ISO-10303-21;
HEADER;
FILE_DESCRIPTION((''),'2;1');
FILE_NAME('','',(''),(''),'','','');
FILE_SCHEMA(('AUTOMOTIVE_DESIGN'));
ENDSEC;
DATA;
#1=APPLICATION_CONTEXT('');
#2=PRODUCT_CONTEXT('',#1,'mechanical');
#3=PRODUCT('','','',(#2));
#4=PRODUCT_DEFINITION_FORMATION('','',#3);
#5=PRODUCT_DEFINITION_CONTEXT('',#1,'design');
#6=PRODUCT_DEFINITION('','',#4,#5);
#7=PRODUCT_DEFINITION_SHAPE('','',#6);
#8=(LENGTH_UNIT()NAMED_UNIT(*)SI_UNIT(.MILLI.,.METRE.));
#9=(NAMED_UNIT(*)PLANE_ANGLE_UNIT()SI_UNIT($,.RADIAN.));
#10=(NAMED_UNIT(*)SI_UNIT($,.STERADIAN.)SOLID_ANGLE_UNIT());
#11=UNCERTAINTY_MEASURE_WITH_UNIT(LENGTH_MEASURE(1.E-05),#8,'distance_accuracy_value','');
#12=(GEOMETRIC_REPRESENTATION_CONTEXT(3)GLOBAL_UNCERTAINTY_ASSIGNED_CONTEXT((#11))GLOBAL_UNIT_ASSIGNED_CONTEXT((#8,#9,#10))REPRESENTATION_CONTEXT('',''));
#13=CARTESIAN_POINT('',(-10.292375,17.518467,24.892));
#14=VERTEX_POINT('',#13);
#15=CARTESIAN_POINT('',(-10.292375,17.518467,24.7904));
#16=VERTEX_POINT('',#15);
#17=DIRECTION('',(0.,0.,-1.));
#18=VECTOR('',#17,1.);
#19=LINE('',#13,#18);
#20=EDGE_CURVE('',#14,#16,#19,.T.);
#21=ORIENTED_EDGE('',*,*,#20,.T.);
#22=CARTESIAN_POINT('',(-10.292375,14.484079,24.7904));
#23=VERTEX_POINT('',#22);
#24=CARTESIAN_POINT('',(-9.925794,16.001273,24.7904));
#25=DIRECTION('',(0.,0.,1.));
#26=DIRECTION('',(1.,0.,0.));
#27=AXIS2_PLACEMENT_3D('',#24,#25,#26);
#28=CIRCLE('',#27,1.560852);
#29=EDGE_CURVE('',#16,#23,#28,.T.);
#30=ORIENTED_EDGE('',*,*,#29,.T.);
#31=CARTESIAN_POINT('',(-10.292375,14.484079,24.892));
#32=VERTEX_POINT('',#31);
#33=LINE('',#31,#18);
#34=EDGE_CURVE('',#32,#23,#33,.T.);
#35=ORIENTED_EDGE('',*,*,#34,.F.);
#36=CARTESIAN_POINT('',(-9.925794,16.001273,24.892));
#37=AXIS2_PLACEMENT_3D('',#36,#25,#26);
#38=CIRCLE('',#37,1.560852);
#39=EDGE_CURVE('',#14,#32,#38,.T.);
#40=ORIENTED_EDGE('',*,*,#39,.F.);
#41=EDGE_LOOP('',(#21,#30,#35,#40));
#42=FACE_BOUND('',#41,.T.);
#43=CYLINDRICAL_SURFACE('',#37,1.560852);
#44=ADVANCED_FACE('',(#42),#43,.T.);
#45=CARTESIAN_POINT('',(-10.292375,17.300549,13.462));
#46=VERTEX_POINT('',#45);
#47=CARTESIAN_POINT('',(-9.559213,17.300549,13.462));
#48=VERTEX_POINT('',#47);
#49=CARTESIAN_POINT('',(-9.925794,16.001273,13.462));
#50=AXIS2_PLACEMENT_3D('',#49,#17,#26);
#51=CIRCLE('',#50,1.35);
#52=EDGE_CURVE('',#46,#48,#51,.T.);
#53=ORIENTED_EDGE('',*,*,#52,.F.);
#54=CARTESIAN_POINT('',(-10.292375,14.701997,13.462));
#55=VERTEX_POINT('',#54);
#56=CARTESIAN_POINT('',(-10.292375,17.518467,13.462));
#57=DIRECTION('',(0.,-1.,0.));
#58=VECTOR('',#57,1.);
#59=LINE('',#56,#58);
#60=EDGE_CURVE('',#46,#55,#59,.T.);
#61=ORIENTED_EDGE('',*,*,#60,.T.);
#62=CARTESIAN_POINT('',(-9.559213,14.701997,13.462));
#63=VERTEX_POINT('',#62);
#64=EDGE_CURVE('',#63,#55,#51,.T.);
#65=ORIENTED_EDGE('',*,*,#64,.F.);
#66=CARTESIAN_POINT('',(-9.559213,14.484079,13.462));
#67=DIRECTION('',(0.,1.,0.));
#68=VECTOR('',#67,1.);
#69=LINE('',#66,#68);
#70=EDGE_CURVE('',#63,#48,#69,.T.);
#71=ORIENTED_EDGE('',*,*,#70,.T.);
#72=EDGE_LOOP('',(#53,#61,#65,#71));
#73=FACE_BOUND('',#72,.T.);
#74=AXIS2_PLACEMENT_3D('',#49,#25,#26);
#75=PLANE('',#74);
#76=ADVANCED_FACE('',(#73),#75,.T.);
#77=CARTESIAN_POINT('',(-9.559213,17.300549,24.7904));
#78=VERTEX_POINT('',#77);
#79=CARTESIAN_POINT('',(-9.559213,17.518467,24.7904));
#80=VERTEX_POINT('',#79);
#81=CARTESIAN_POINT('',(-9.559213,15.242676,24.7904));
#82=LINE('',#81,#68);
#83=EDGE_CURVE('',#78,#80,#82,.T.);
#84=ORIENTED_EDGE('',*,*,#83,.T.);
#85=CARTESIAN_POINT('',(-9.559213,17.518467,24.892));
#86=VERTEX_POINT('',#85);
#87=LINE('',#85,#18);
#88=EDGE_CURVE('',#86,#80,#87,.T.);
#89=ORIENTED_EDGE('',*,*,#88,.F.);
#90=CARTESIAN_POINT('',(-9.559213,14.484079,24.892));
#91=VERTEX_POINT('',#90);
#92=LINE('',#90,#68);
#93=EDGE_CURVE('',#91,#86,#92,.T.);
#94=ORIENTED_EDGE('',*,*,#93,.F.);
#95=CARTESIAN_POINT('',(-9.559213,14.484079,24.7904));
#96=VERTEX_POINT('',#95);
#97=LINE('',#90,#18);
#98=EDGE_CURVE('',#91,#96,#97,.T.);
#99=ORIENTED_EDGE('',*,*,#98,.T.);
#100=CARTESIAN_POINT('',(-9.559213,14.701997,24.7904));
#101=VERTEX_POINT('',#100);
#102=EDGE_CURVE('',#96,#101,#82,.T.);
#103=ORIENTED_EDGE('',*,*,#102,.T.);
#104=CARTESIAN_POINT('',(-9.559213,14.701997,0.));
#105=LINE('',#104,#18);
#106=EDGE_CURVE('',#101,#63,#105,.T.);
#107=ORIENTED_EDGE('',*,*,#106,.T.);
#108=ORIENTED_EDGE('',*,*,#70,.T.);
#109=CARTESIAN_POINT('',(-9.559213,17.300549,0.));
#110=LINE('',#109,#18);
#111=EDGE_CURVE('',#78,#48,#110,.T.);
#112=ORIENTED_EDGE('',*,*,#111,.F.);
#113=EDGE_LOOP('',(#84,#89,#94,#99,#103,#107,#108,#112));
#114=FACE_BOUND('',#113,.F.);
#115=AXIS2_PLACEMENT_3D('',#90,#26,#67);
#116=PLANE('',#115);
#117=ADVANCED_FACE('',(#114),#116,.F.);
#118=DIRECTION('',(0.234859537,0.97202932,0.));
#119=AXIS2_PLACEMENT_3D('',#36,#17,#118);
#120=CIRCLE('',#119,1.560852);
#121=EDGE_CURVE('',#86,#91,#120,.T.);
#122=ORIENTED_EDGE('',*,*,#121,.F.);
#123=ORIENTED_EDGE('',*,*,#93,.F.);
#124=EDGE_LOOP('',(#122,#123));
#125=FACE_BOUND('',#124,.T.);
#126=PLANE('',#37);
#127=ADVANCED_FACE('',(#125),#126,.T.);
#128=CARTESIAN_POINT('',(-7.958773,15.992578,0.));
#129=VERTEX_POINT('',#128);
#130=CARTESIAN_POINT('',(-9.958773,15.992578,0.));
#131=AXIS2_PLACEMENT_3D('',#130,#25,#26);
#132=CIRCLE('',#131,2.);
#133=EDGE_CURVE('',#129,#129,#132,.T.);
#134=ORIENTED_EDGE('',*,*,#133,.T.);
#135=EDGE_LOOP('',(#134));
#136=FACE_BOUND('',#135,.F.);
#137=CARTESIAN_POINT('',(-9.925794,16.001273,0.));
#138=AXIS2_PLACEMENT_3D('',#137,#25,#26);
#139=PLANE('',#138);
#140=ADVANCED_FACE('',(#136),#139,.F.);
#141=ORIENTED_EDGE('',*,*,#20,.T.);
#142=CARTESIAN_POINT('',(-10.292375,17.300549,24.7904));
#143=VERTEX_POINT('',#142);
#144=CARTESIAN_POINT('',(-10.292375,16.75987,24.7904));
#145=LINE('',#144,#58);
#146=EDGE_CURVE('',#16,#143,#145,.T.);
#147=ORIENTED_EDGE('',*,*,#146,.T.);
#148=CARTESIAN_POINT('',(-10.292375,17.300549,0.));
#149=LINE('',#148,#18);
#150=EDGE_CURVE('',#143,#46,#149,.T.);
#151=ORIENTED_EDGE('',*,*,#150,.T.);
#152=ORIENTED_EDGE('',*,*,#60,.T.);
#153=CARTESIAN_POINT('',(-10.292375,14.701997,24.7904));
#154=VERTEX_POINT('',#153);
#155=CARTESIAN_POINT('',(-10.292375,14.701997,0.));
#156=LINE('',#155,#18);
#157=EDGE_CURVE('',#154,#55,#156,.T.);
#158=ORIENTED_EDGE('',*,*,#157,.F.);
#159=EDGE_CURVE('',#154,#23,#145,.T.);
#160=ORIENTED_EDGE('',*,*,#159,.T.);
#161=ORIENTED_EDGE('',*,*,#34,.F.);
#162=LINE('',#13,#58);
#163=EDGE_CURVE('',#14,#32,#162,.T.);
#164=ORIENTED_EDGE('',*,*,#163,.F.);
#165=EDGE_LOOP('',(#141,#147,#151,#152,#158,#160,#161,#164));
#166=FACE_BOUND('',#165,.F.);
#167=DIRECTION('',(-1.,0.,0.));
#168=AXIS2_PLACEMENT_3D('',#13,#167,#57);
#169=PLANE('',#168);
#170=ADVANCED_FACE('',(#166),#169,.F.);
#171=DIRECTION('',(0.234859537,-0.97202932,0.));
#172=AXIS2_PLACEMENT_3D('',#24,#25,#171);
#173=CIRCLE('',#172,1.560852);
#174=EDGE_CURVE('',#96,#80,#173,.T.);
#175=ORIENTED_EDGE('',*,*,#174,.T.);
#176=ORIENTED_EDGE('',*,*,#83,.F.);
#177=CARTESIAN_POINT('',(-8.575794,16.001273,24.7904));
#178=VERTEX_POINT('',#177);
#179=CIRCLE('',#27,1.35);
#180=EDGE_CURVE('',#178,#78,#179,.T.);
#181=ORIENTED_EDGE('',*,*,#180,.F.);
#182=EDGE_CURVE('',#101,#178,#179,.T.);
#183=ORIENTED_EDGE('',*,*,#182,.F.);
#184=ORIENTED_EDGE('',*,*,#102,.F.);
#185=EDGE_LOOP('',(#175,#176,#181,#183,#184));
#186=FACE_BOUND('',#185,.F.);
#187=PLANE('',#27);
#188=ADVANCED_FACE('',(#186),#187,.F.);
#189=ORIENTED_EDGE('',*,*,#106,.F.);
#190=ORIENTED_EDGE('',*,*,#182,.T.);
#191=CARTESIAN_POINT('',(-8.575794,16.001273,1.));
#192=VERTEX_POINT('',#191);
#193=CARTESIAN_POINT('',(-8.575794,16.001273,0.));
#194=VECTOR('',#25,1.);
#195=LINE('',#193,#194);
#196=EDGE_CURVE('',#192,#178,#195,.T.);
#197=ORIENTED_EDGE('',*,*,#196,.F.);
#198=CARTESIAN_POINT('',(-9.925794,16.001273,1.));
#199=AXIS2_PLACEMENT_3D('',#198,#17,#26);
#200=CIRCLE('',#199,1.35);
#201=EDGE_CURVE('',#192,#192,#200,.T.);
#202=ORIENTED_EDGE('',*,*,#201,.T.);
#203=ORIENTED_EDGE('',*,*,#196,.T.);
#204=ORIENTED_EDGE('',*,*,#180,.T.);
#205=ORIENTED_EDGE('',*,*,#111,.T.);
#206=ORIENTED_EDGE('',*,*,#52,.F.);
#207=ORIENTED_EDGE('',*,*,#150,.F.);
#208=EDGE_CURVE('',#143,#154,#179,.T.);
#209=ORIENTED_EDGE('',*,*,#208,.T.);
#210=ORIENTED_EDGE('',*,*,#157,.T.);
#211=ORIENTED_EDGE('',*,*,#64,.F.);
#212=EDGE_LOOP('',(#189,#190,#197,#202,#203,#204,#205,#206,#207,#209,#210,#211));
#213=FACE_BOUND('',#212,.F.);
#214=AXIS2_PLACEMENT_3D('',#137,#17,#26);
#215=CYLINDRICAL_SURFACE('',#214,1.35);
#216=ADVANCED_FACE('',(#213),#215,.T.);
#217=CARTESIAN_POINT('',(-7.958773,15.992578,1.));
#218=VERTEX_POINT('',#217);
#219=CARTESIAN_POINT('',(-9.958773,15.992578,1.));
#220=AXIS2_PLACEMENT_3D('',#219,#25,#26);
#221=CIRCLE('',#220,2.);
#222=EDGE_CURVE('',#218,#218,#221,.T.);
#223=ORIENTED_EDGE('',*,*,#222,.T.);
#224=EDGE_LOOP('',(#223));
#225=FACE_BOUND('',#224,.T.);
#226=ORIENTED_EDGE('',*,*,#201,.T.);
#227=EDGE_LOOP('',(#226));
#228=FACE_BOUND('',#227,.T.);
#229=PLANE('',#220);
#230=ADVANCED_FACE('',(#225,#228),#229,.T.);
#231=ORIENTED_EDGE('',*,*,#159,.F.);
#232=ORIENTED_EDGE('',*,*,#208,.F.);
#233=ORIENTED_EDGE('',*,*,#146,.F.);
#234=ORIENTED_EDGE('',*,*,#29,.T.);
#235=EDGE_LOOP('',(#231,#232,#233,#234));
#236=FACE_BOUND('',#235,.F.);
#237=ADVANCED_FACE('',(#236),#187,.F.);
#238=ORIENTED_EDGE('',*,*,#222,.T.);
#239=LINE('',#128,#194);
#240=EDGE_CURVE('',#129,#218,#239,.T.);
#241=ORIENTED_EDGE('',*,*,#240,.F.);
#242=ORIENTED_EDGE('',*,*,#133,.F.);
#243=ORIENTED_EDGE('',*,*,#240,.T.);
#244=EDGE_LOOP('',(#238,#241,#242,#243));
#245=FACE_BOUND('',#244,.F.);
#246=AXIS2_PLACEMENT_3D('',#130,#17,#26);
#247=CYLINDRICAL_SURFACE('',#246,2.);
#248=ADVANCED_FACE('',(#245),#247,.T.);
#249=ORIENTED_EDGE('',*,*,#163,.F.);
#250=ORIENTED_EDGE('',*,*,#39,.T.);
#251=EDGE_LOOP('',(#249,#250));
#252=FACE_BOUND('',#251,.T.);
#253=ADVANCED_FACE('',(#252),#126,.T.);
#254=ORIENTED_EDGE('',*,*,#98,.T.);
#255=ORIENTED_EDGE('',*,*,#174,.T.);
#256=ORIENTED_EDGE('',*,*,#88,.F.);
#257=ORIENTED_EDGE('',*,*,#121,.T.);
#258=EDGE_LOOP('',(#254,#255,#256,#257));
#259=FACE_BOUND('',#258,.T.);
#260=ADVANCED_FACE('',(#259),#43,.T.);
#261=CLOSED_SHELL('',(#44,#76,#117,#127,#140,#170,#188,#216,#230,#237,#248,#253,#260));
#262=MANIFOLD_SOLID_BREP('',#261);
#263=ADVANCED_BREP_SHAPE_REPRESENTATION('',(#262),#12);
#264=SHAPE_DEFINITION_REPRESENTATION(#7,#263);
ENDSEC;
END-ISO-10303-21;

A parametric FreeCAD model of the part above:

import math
import FreeCAD as App
import Part
import Sketcher

V = App.Vector
Q = App.Units.Quantity

doc = App.newDocument("Part")
body = doc.addObject("PartDesign::Body", "Body")

# Sketch on XY plane
sketch1 = body.newObject("Sketcher::SketchObject", "Sketch")
sketch1.AttachmentSupport = (doc.getObject("XY_Plane"), [""])
sketch1.MapMode = "FlatFace"
sketch1.addGeometry(Part.Circle(V(-10, 16, 0), V(0, 0, 1), 2), False)
sketch1.addConstraint(Sketcher.Constraint("Diameter", 0, Q("4 mm")))
sketch1.addConstraint(Sketcher.Constraint("DistanceX", 0, 3, -1, 1, Q("9.958773 mm")))
sketch1.addConstraint(Sketcher.Constraint("DistanceY", -1, 1, 0, 3, Q("15.992578 mm")))
pad1 = body.newObject("PartDesign::Pad", "Pad")
pad1.Profile = sketch1
pad1.Length = 1

# Sketch on XY plane
sketch2 = body.newObject("Sketcher::SketchObject", "Sketch001")
sketch2.AttachmentSupport = (doc.getObject("XY_Plane"), [""])
sketch2.MapMode = "FlatFace"
sketch2.addGeometry(Part.Circle(V(-9.9, 16, 0), V(0, 0, 1), 1.4), False)
sketch2.addConstraint(Sketcher.Constraint("Diameter", 0, Q("2.7 mm")))
sketch2.addConstraint(Sketcher.Constraint("DistanceX", 0, 3, -1, 1, Q("9.925794 mm")))
sketch2.addConstraint(Sketcher.Constraint("DistanceY", -1, 1, 0, 3, Q("16.001273 mm")))
pad2 = body.newObject("PartDesign::Pad", "Pad001")
pad2.Profile = sketch2
pad2.Length = 24.892

# Sketch on XY plane
sketch3 = body.newObject("Sketcher::SketchObject", "Sketch002")
sketch3.AttachmentSupport = (doc.getObject("XY_Plane"), [""])
sketch3.MapMode = "FlatFace"
sketch3.AttachmentOffset = App.Placement(V(0, 0, 24.892), App.Rotation())
sketch3.addGeometry(Part.Circle(V(-9.9, 16, 0), V(0, 0, 1), 1.6), False)
sketch3.addGeometry(Part.Circle(V(-9.9, 16, 0), V(0, 0, 1), 1.4), False)
sketch3.addConstraint(Sketcher.Constraint("Coincident", 1, 3, 0, 3))
sketch3.addConstraint(Sketcher.Constraint("Diameter", 1, Q("2.7 mm")))
sketch3.addConstraint(Sketcher.Constraint("Diameter", 0, Q("3.121704 mm")))
sketch3.addConstraint(Sketcher.Constraint("DistanceX", 0, 3, -1, 1, Q("9.925794 mm")))
sketch3.addConstraint(Sketcher.Constraint("DistanceY", -1, 1, 0, 3, Q("16.001273 mm")))
pad3 = body.newObject("PartDesign::Pad", "Pad002")
pad3.Profile = sketch3
pad3.Length = 0.1016
pad3.Reversed = True

# Sketch on XY plane
sketch4 = body.newObject("Sketcher::SketchObject", "Sketch003")
sketch4.AttachmentSupport = (doc.getObject("XY_Plane"), [""])
sketch4.MapMode = "FlatFace"
sketch4.AttachmentOffset = App.Placement(V(0, 0, 24.892), App.Rotation())
sketch4.addGeometry(Part.ArcOfCircle(Part.Circle(V(-9.9, 16, 0), V(0, 0, 1), 1.6), math.radians(-104), math.radians(-76)), False)
sketch4.addGeometry(Part.LineSegment(V(-9.6, 14.5, 0), V(-9.6, 17.5, 0)), False)
sketch4.addGeometry(Part.ArcOfCircle(Part.Circle(V(-9.9, 16, 0), V(0, 0, 1), 1.6), math.radians(76), math.radians(104)), False)
sketch4.addGeometry(Part.LineSegment(V(-10.3, 17.5, 0), V(-10.3, 14.5, 0)), False)
sketch4.addConstraint(Sketcher.Constraint("Coincident", 0, 2, 1, 1))
sketch4.addConstraint(Sketcher.Constraint("Coincident", 1, 2, 2, 1))
sketch4.addConstraint(Sketcher.Constraint("Coincident", 2, 2, 3, 1))
sketch4.addConstraint(Sketcher.Constraint("Coincident", 3, 2, 0, 1))
sketch4.addConstraint(Sketcher.Constraint("Vertical", 1))
sketch4.addConstraint(Sketcher.Constraint("Vertical", 3))
sketch4.addConstraint(Sketcher.Constraint("Coincident", 2, 3, 0, 3))
sketch4.addConstraint(Sketcher.Constraint("Equal", 0, 2))
sketch4.addConstraint(Sketcher.Constraint("Horizontal", 1, 2, 2, 2))
sketch4.addConstraint(Sketcher.Constraint("Radius", 0, Q("1.560855 mm")))
sketch4.addConstraint(Sketcher.Constraint("DistanceY", 1, 1, 1, 2, Q("3.034388 mm")))
sketch4.addConstraint(Sketcher.Constraint("DistanceY", -1, 1, 2, 3, Q("16.00127 mm")))
sketch4.addConstraint(Sketcher.Constraint("DistanceX", 0, 3, -1, 1, Q("9.925794 mm")))
pocket1 = body.newObject("PartDesign::Pocket", "Pocket")
pocket1.Profile = sketch4
pocket1.Length = 11.43

doc.recompute()
